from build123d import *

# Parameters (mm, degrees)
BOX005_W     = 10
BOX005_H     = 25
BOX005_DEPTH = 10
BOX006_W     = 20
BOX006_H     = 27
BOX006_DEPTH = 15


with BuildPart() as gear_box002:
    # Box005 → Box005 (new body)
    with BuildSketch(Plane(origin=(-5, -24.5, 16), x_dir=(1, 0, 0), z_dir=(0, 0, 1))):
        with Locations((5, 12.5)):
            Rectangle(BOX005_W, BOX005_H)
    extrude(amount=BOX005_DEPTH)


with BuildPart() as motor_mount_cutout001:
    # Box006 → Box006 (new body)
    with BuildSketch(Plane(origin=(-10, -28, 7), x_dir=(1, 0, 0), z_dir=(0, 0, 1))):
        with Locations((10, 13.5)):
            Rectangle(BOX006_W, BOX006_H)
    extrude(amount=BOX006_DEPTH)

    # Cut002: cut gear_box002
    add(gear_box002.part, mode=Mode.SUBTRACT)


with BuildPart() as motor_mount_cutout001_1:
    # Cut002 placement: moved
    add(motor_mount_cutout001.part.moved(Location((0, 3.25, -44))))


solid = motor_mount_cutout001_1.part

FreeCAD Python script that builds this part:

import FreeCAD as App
import Part
import Sketcher

V = App.Vector

doc = App.newDocument("Part")
body = doc.addObject("PartDesign::Body", "Body")

sketch1 = body.newObject("Sketcher::SketchObject", "Sketch")
sketch1.AttachmentSupport = (doc.getObject("XY_Plane"), [""])
sketch1.MapMode = "FlatFace"
sketch1.AttachmentOffset = App.Placement(V(0, 0, 16), App.Rotation())
sketch1.addGeometry([
    Part.LineSegment(V(-5, 0, 0), V(-5, -24, 0)),
    Part.LineSegment(V(-5, -24, 0), V(5, -24, 0)),
    Part.LineSegment(V(5, -24, 0), V(5, 0, 0)),
    Part.LineSegment(V(5, 0, 0), V(-5, 0, 0)),
], False)
sketch1.addConstraint([
    Sketcher.Constraint("Coincident", 0, 2, 1, 1),
    Sketcher.Constraint("Coincident", 1, 2, 2, 1),
    Sketcher.Constraint("Coincident", 2, 2, 3, 1),
    Sketcher.Constraint("Coincident", 3, 2, 0, 1),
    Sketcher.Constraint("Vertical", 0),
    Sketcher.Constraint("Horizontal", 1),
    Sketcher.Constraint("Vertical", 2),
    Sketcher.Constraint("Horizontal", 3),
    Sketcher.Constraint("DistanceX", 1, 1, 1, 2, 10.0),
    Sketcher.Constraint("DistanceY", 0, 2, 0, 1, 25.0),
    Sketcher.Constraint("DistanceX", 0, 2, -1, 1, 5.0),
    Sketcher.Constraint("DistanceY", 0, 2, -1, 1, 24.5),
])
pad1 = body.newObject("PartDesign::Pad", "Pad")
pad1.Profile = sketch1
pad1.Length = 10
body2 = doc.addObject("PartDesign::Body", "Body001")

sketch2 = body2.newObject("Sketcher::SketchObject", "Sketch001")
sketch2.AttachmentSupport = (doc.getObject("XY_Plane001"), [""])
sketch2.MapMode = "FlatFace"
sketch2.AttachmentOffset = App.Placement(V(0, 0, 7), App.Rotation())
sketch2.addGeometry([
    Part.LineSegment(V(-10, -1, 0), V(-10, -28, 0)),
    Part.LineSegment(V(-10, -28, 0), V(10, -28, 0)),
    Part.LineSegment(V(10, -28, 0), V(10, -1, 0)),
    Part.LineSegment(V(10, -1, 0), V(-10, -1, 0)),
], False)
sketch2.addConstraint([
    Sketcher.Constraint("Coincident", 0, 2, 1, 1),
    Sketcher.Constraint("Coincident", 1, 2, 2, 1),
    Sketcher.Constraint("Coincident", 2, 2, 3, 1),
    Sketcher.Constraint("Coincident", 3, 2, 0, 1),
    Sketcher.Constraint("Vertical", 0),
    Sketcher.Constraint("Horizontal", 1),
    Sketcher.Constraint("Vertical", 2),
    Sketcher.Constraint("Horizontal", 3),
    Sketcher.Constraint("DistanceX", 1, 1, 1, 2, 20.0),
    Sketcher.Constraint("DistanceY", 0, 2, 0, 1, 27.0),
    Sketcher.Constraint("DistanceX", 0, 2, -1, 1, 10.0),
    Sketcher.Constraint("DistanceY", 0, 2, -1, 1, 28.0),
])
pad2 = body2.newObject("PartDesign::Pad", "Pad001")
pad2.Profile = sketch2
pad2.Length = 15
doc.recompute()

boolean = body2.newObject("PartDesign::Boolean", "Boolean")
boolean.Type = "Cut"
boolean.addObjects([body])
body3 = doc.addObject("PartDesign::Body", "Body002")
doc.recompute()

body2.Placement = App.Placement(V(0, 3.25, -44), App.Rotation(V(0, 0, 1), 0))
boolean2 = body3.newObject("PartDesign::Boolean", "Boolean001")
boolean2.Type = "Fuse"
boolean2.addObjects([body2])

doc.recompute()
